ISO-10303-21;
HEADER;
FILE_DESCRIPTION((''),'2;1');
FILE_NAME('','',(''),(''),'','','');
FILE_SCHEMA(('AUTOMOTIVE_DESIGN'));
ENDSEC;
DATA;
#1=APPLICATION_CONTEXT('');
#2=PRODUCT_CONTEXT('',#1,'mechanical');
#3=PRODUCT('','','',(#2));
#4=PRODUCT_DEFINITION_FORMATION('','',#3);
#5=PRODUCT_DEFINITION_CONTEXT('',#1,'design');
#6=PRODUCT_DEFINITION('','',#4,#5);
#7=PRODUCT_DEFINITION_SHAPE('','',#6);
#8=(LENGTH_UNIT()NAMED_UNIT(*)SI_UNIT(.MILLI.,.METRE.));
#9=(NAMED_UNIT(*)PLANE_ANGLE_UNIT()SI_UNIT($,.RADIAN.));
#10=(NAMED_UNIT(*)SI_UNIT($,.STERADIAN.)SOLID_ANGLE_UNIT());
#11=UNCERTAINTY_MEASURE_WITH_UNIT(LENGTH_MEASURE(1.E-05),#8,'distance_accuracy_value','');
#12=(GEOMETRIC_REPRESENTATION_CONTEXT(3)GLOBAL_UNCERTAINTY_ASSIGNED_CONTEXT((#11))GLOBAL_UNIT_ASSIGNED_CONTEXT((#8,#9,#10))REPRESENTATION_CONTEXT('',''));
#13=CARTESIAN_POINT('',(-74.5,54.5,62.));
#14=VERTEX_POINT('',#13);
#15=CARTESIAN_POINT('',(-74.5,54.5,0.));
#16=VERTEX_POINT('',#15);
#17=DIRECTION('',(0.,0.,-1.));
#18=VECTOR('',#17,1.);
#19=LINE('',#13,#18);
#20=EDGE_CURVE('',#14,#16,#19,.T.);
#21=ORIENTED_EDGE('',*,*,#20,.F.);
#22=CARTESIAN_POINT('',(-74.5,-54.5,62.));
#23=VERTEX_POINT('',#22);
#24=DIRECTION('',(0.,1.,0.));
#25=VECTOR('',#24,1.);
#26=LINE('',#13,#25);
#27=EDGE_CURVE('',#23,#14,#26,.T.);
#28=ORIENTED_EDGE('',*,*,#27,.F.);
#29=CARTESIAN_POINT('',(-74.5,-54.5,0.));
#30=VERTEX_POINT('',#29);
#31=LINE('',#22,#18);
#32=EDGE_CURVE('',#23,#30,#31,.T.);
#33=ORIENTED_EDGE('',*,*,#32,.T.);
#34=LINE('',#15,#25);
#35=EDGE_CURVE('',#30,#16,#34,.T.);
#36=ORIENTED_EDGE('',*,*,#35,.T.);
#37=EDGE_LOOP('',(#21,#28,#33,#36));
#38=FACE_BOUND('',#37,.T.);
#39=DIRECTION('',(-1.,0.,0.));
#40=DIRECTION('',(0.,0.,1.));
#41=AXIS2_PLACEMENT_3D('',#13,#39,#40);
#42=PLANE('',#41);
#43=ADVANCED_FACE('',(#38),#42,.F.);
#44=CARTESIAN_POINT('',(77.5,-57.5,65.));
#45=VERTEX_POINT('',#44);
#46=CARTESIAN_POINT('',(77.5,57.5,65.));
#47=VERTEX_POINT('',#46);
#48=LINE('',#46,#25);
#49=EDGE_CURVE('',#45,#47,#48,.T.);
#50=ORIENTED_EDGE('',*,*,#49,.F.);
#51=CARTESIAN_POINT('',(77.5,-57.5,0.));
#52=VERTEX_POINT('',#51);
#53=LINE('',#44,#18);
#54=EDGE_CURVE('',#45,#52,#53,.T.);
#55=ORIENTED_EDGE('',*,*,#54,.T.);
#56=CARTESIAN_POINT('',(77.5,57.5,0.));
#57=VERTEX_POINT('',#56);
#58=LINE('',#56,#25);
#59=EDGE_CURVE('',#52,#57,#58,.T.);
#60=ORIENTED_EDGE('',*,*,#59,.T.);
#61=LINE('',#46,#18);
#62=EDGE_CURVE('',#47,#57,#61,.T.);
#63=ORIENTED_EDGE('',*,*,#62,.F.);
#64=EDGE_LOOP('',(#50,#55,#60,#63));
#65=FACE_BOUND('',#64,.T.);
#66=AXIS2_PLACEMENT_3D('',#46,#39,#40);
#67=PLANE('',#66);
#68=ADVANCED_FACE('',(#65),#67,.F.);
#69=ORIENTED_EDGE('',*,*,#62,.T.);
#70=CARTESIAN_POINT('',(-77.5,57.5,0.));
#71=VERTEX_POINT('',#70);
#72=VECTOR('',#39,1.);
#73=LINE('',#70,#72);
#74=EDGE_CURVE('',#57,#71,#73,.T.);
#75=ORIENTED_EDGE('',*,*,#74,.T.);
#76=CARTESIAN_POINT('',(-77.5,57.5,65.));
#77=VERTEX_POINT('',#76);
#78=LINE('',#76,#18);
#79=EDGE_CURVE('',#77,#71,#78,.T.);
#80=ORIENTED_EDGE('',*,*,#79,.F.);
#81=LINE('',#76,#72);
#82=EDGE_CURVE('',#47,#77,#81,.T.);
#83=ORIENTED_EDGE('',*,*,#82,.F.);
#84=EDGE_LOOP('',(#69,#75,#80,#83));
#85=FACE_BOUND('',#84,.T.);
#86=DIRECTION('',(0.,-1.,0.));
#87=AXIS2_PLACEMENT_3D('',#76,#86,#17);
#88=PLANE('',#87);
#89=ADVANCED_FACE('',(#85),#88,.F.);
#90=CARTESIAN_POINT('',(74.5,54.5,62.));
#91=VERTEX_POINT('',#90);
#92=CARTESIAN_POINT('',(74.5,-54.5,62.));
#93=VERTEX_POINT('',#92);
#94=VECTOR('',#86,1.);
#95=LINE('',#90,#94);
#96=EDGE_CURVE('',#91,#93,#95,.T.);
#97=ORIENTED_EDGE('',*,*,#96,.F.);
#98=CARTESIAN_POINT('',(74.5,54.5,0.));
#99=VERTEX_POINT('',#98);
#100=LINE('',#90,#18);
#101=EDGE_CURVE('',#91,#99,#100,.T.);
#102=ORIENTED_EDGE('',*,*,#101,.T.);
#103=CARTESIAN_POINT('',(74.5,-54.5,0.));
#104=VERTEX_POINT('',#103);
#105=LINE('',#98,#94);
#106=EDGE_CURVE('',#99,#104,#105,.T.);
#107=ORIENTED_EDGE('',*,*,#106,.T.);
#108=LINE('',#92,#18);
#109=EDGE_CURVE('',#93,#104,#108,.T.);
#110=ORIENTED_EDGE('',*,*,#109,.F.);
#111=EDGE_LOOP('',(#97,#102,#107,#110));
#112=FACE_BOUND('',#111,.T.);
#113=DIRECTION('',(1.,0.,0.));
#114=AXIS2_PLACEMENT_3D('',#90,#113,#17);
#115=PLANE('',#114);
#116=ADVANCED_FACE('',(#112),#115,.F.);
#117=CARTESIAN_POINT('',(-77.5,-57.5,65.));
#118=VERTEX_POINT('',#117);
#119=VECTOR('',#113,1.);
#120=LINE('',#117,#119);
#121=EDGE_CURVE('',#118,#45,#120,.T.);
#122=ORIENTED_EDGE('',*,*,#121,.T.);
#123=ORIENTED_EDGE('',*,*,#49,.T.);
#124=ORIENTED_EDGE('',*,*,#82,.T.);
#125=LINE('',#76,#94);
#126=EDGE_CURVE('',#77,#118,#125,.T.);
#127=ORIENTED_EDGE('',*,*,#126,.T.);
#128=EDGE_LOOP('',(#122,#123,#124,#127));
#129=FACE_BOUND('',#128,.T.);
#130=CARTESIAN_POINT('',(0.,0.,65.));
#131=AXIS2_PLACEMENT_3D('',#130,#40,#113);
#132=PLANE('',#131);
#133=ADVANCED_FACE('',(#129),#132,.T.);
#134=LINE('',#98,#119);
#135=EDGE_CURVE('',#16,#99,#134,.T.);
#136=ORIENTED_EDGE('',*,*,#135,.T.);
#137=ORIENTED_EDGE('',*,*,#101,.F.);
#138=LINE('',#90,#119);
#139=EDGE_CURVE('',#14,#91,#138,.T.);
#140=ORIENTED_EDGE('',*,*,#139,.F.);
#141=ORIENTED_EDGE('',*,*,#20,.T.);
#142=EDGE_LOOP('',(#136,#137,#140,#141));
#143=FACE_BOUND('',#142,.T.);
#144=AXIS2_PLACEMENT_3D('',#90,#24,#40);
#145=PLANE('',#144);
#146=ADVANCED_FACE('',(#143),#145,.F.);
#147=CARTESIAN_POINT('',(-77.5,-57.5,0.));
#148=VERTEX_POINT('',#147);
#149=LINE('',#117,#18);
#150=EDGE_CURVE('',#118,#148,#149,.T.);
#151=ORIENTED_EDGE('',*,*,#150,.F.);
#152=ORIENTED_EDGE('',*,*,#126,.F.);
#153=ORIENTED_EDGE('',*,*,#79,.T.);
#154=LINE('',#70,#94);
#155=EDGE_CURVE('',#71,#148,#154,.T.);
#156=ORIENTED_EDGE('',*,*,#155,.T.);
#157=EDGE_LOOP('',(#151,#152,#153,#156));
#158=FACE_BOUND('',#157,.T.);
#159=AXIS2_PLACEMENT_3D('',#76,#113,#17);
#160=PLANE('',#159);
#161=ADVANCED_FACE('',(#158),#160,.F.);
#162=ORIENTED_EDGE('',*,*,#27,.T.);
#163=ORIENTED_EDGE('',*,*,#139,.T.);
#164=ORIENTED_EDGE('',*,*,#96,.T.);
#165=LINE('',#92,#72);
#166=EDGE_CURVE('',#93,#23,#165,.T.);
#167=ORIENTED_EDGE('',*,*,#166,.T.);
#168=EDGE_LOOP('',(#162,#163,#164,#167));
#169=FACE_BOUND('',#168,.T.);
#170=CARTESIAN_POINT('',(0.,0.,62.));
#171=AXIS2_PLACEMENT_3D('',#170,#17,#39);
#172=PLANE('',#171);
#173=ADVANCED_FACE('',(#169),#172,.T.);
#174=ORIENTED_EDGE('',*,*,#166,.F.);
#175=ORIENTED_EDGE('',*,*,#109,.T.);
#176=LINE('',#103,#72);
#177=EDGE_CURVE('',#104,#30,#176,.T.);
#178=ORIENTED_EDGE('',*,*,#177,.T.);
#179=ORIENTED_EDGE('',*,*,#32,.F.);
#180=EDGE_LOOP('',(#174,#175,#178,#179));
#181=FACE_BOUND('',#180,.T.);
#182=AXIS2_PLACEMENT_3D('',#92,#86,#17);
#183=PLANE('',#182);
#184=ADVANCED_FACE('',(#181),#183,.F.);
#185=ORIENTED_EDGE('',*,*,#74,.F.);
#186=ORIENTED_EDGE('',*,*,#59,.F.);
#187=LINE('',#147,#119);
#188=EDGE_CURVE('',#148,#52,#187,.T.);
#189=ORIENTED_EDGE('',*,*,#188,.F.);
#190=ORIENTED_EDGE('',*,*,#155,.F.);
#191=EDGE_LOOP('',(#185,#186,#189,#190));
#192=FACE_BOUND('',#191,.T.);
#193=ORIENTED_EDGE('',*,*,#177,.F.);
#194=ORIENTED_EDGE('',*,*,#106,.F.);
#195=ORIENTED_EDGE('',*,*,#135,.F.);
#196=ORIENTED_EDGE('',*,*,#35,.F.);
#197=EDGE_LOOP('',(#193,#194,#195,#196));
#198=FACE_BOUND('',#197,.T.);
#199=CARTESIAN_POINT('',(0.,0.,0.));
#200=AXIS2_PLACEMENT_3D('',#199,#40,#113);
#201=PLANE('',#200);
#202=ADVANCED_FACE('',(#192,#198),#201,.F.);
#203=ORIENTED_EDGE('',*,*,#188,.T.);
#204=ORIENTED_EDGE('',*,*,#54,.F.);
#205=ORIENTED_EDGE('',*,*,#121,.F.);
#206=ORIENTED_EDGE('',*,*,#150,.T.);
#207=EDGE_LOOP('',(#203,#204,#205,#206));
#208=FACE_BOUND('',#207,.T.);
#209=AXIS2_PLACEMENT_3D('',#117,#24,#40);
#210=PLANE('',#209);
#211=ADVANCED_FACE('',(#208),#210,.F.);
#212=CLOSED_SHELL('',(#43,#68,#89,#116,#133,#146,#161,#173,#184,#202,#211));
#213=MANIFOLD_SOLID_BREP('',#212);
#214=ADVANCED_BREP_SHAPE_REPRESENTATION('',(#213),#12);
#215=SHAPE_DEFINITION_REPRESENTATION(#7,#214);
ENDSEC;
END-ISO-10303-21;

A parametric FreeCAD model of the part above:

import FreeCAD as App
import Part
import Sketcher

V = App.Vector


def add_polygon(sketch, points):
    """Adds a closed chain of lines whose ends are joined by coincident constraints."""
    first, n = sketch.GeometryCount, len(points)
    for a, b in zip(points, points[1:] + points[:1]):
        sketch.addGeometry(Part.LineSegment(App.Vector(*a, 0), App.Vector(*b, 0)), False)
    for i in range(n):
        sketch.addConstraint(Sketcher.Constraint("Coincident", first + i, 2, first + (i + 1) % n, 1))

doc = App.newDocument("Part")
body = doc.addObject("PartDesign::Body", "Body")

# Sketch on XY plane
sketch1 = body.newObject("Sketcher::SketchObject", "Sketch")
sketch1.AttachmentSupport = (doc.getObject("XY_Plane"), [""])
sketch1.MapMode = "FlatFace"
add_polygon(sketch1, [(-77.5, 57.5), (-77.5, -57.5), (77.5, -57.5), (77.5, 57.5)])  # lines 0-3
sketch1.addConstraint(Sketcher.Constraint("Vertical", 0))
sketch1.addConstraint(Sketcher.Constraint("Horizontal", 1))
sketch1.addConstraint(Sketcher.Constraint("Vertical", 2))
sketch1.addConstraint(Sketcher.Constraint("Horizontal", 3))
sketch1.addConstraint(Sketcher.Constraint("Symmetric", 0, 2, 2, 2, -1, 1))
sketch1.addConstraint(Sketcher.Constraint("DistanceX", 1, 1, 1, 2, 155.0))
sketch1.addConstraint(Sketcher.Constraint("DistanceY", 0, 2, 0, 1, 115.0))
pad1 = body.newObject("PartDesign::Pad", "Pad")
pad1.Profile = sketch1
pad1.Length = 65

# Sketch on XY plane
sketch2 = body.newObject("Sketcher::SketchObject", "Sketch001")
sketch2.AttachmentSupport = (doc.getObject("XY_Plane"), [""])
sketch2.MapMode = "FlatFace"
add_polygon(sketch2, [(74.5, 54.5), (74.5, -54.5), (-74.5, -54.5), (-74.5, 54.5)])  # lines 0-3
sketch2.addConstraint(Sketcher.Constraint("Vertical", 0))
sketch2.addConstraint(Sketcher.Constraint("Horizontal", 1))
sketch2.addConstraint(Sketcher.Constraint("Vertical", 2))
sketch2.addConstraint(Sketcher.Constraint("Horizontal", 3))
sketch2.addConstraint(Sketcher.Constraint("Symmetric", 0, 2, 2, 2, -1, 1))
sketch2.addConstraint(Sketcher.Constraint("DistanceX", 1, 2, 1, 1, 149.0))
sketch2.addConstraint(Sketcher.Constraint("DistanceY", 0, 2, 0, 1, 109.0))
pocket1 = body.newObject("PartDesign::Pocket", "Pocket")
pocket1.Profile = sketch2
pocket1.Length = 62
pocket1.Reversed = True

doc.recompute()
